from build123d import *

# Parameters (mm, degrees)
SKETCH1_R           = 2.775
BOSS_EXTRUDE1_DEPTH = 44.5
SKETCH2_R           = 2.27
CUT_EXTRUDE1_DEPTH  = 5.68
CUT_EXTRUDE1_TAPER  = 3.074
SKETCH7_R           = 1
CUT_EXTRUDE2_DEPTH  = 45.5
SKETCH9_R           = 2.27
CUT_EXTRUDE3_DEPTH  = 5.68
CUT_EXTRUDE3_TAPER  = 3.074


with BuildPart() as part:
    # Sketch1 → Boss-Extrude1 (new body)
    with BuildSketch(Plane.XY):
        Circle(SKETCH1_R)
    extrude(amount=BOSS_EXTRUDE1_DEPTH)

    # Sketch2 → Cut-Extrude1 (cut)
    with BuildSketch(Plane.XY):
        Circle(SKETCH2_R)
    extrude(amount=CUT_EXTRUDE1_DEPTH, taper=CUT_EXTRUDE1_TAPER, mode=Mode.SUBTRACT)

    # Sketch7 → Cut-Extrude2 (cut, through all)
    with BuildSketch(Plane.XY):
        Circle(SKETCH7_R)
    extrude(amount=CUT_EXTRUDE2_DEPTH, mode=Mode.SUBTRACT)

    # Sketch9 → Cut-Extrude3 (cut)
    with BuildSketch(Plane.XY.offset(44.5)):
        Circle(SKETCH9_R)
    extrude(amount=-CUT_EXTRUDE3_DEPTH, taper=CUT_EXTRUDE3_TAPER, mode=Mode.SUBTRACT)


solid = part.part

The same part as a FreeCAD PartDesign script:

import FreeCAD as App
import Part
import Sketcher
Q = App.Units.Quantity

doc = App.newDocument("Part")
body = doc.addObject("PartDesign::Body", "Body")

sketch1 = body.newObject("Sketcher::SketchObject", "Sketch")
sketch1.AttachmentSupport = (doc.getObject("XY_Plane"), [""])
sketch1.MapMode = "FlatFace"
sketch1.addGeometry(Part.Circle(App.Vector(0, 0, 0), App.Vector(0, 0, 1), 2.8), False)
sketch1.addConstraint([
    Sketcher.Constraint("Coincident", 0, 3, -1, 1),
    Sketcher.Constraint("Diameter", 0, Q("5.55 mm")),
])
pad1 = body.newObject("PartDesign::Pad", "Pad")
pad1.Profile = sketch1
pad1.Length = 44.5

sketch2 = body.newObject("Sketcher::SketchObject", "Sketch001")
sketch2.AttachmentSupport = (doc.getObject("XY_Plane"), [""])
sketch2.MapMode = "FlatFace"
sketch2.addGeometry(Part.Circle(App.Vector(0, 0, 0), App.Vector(0, 0, 1), 2.3), False)
sketch2.addConstraint([
    Sketcher.Constraint("Coincident", 0, 3, -1, 1),
    Sketcher.Constraint("Diameter", 0, Q("4.54 mm")),
])
pocket1 = body.newObject("PartDesign::Pocket", "Pocket")
pocket1.Profile = sketch2
pocket1.Length = 5.68
pocket1.Reversed = True
pocket1.TaperAngle = -3.074

sketch3 = body.newObject("Sketcher::SketchObject", "Sketch002")
sketch3.AttachmentSupport = (doc.getObject("XY_Plane"), [""])
sketch3.MapMode = "FlatFace"
sketch3.addGeometry(Part.Circle(App.Vector(0, 0, 0), App.Vector(0, 0, 1), 1), False)
sketch3.addConstraint([
    Sketcher.Constraint("Coincident", 0, 3, -1, 1),
    Sketcher.Constraint("Diameter", 0, Q("2 mm")),
])
pocket2 = body.newObject("PartDesign::Pocket", "Pocket001")
pocket2.Profile = sketch3
pocket2.Type = "ThroughAll"
pocket2.Reversed = True

sketch4 = body.newObject("Sketcher::SketchObject", "Sketch003")
sketch4.AttachmentSupport = (doc.getObject("XY_Plane"), [""])
sketch4.MapMode = "FlatFace"
sketch4.AttachmentOffset = App.Placement(App.Vector(0, 0, 44.5), App.Rotation())
sketch4.addGeometry(Part.Circle(App.Vector(0, 0, 0), App.Vector(0, 0, 1), 2.3), False)
sketch4.addConstraint([
    Sketcher.Constraint("Coincident", 0, 3, -1, 1),
    Sketcher.Constraint("Diameter", 0, Q("4.54 mm")),
])
pocket3 = body.newObject("PartDesign::Pocket", "Pocket002")
pocket3.Profile = sketch4
pocket3.Length = 5.68
pocket3.TaperAngle = -3.074

doc.recompute()
